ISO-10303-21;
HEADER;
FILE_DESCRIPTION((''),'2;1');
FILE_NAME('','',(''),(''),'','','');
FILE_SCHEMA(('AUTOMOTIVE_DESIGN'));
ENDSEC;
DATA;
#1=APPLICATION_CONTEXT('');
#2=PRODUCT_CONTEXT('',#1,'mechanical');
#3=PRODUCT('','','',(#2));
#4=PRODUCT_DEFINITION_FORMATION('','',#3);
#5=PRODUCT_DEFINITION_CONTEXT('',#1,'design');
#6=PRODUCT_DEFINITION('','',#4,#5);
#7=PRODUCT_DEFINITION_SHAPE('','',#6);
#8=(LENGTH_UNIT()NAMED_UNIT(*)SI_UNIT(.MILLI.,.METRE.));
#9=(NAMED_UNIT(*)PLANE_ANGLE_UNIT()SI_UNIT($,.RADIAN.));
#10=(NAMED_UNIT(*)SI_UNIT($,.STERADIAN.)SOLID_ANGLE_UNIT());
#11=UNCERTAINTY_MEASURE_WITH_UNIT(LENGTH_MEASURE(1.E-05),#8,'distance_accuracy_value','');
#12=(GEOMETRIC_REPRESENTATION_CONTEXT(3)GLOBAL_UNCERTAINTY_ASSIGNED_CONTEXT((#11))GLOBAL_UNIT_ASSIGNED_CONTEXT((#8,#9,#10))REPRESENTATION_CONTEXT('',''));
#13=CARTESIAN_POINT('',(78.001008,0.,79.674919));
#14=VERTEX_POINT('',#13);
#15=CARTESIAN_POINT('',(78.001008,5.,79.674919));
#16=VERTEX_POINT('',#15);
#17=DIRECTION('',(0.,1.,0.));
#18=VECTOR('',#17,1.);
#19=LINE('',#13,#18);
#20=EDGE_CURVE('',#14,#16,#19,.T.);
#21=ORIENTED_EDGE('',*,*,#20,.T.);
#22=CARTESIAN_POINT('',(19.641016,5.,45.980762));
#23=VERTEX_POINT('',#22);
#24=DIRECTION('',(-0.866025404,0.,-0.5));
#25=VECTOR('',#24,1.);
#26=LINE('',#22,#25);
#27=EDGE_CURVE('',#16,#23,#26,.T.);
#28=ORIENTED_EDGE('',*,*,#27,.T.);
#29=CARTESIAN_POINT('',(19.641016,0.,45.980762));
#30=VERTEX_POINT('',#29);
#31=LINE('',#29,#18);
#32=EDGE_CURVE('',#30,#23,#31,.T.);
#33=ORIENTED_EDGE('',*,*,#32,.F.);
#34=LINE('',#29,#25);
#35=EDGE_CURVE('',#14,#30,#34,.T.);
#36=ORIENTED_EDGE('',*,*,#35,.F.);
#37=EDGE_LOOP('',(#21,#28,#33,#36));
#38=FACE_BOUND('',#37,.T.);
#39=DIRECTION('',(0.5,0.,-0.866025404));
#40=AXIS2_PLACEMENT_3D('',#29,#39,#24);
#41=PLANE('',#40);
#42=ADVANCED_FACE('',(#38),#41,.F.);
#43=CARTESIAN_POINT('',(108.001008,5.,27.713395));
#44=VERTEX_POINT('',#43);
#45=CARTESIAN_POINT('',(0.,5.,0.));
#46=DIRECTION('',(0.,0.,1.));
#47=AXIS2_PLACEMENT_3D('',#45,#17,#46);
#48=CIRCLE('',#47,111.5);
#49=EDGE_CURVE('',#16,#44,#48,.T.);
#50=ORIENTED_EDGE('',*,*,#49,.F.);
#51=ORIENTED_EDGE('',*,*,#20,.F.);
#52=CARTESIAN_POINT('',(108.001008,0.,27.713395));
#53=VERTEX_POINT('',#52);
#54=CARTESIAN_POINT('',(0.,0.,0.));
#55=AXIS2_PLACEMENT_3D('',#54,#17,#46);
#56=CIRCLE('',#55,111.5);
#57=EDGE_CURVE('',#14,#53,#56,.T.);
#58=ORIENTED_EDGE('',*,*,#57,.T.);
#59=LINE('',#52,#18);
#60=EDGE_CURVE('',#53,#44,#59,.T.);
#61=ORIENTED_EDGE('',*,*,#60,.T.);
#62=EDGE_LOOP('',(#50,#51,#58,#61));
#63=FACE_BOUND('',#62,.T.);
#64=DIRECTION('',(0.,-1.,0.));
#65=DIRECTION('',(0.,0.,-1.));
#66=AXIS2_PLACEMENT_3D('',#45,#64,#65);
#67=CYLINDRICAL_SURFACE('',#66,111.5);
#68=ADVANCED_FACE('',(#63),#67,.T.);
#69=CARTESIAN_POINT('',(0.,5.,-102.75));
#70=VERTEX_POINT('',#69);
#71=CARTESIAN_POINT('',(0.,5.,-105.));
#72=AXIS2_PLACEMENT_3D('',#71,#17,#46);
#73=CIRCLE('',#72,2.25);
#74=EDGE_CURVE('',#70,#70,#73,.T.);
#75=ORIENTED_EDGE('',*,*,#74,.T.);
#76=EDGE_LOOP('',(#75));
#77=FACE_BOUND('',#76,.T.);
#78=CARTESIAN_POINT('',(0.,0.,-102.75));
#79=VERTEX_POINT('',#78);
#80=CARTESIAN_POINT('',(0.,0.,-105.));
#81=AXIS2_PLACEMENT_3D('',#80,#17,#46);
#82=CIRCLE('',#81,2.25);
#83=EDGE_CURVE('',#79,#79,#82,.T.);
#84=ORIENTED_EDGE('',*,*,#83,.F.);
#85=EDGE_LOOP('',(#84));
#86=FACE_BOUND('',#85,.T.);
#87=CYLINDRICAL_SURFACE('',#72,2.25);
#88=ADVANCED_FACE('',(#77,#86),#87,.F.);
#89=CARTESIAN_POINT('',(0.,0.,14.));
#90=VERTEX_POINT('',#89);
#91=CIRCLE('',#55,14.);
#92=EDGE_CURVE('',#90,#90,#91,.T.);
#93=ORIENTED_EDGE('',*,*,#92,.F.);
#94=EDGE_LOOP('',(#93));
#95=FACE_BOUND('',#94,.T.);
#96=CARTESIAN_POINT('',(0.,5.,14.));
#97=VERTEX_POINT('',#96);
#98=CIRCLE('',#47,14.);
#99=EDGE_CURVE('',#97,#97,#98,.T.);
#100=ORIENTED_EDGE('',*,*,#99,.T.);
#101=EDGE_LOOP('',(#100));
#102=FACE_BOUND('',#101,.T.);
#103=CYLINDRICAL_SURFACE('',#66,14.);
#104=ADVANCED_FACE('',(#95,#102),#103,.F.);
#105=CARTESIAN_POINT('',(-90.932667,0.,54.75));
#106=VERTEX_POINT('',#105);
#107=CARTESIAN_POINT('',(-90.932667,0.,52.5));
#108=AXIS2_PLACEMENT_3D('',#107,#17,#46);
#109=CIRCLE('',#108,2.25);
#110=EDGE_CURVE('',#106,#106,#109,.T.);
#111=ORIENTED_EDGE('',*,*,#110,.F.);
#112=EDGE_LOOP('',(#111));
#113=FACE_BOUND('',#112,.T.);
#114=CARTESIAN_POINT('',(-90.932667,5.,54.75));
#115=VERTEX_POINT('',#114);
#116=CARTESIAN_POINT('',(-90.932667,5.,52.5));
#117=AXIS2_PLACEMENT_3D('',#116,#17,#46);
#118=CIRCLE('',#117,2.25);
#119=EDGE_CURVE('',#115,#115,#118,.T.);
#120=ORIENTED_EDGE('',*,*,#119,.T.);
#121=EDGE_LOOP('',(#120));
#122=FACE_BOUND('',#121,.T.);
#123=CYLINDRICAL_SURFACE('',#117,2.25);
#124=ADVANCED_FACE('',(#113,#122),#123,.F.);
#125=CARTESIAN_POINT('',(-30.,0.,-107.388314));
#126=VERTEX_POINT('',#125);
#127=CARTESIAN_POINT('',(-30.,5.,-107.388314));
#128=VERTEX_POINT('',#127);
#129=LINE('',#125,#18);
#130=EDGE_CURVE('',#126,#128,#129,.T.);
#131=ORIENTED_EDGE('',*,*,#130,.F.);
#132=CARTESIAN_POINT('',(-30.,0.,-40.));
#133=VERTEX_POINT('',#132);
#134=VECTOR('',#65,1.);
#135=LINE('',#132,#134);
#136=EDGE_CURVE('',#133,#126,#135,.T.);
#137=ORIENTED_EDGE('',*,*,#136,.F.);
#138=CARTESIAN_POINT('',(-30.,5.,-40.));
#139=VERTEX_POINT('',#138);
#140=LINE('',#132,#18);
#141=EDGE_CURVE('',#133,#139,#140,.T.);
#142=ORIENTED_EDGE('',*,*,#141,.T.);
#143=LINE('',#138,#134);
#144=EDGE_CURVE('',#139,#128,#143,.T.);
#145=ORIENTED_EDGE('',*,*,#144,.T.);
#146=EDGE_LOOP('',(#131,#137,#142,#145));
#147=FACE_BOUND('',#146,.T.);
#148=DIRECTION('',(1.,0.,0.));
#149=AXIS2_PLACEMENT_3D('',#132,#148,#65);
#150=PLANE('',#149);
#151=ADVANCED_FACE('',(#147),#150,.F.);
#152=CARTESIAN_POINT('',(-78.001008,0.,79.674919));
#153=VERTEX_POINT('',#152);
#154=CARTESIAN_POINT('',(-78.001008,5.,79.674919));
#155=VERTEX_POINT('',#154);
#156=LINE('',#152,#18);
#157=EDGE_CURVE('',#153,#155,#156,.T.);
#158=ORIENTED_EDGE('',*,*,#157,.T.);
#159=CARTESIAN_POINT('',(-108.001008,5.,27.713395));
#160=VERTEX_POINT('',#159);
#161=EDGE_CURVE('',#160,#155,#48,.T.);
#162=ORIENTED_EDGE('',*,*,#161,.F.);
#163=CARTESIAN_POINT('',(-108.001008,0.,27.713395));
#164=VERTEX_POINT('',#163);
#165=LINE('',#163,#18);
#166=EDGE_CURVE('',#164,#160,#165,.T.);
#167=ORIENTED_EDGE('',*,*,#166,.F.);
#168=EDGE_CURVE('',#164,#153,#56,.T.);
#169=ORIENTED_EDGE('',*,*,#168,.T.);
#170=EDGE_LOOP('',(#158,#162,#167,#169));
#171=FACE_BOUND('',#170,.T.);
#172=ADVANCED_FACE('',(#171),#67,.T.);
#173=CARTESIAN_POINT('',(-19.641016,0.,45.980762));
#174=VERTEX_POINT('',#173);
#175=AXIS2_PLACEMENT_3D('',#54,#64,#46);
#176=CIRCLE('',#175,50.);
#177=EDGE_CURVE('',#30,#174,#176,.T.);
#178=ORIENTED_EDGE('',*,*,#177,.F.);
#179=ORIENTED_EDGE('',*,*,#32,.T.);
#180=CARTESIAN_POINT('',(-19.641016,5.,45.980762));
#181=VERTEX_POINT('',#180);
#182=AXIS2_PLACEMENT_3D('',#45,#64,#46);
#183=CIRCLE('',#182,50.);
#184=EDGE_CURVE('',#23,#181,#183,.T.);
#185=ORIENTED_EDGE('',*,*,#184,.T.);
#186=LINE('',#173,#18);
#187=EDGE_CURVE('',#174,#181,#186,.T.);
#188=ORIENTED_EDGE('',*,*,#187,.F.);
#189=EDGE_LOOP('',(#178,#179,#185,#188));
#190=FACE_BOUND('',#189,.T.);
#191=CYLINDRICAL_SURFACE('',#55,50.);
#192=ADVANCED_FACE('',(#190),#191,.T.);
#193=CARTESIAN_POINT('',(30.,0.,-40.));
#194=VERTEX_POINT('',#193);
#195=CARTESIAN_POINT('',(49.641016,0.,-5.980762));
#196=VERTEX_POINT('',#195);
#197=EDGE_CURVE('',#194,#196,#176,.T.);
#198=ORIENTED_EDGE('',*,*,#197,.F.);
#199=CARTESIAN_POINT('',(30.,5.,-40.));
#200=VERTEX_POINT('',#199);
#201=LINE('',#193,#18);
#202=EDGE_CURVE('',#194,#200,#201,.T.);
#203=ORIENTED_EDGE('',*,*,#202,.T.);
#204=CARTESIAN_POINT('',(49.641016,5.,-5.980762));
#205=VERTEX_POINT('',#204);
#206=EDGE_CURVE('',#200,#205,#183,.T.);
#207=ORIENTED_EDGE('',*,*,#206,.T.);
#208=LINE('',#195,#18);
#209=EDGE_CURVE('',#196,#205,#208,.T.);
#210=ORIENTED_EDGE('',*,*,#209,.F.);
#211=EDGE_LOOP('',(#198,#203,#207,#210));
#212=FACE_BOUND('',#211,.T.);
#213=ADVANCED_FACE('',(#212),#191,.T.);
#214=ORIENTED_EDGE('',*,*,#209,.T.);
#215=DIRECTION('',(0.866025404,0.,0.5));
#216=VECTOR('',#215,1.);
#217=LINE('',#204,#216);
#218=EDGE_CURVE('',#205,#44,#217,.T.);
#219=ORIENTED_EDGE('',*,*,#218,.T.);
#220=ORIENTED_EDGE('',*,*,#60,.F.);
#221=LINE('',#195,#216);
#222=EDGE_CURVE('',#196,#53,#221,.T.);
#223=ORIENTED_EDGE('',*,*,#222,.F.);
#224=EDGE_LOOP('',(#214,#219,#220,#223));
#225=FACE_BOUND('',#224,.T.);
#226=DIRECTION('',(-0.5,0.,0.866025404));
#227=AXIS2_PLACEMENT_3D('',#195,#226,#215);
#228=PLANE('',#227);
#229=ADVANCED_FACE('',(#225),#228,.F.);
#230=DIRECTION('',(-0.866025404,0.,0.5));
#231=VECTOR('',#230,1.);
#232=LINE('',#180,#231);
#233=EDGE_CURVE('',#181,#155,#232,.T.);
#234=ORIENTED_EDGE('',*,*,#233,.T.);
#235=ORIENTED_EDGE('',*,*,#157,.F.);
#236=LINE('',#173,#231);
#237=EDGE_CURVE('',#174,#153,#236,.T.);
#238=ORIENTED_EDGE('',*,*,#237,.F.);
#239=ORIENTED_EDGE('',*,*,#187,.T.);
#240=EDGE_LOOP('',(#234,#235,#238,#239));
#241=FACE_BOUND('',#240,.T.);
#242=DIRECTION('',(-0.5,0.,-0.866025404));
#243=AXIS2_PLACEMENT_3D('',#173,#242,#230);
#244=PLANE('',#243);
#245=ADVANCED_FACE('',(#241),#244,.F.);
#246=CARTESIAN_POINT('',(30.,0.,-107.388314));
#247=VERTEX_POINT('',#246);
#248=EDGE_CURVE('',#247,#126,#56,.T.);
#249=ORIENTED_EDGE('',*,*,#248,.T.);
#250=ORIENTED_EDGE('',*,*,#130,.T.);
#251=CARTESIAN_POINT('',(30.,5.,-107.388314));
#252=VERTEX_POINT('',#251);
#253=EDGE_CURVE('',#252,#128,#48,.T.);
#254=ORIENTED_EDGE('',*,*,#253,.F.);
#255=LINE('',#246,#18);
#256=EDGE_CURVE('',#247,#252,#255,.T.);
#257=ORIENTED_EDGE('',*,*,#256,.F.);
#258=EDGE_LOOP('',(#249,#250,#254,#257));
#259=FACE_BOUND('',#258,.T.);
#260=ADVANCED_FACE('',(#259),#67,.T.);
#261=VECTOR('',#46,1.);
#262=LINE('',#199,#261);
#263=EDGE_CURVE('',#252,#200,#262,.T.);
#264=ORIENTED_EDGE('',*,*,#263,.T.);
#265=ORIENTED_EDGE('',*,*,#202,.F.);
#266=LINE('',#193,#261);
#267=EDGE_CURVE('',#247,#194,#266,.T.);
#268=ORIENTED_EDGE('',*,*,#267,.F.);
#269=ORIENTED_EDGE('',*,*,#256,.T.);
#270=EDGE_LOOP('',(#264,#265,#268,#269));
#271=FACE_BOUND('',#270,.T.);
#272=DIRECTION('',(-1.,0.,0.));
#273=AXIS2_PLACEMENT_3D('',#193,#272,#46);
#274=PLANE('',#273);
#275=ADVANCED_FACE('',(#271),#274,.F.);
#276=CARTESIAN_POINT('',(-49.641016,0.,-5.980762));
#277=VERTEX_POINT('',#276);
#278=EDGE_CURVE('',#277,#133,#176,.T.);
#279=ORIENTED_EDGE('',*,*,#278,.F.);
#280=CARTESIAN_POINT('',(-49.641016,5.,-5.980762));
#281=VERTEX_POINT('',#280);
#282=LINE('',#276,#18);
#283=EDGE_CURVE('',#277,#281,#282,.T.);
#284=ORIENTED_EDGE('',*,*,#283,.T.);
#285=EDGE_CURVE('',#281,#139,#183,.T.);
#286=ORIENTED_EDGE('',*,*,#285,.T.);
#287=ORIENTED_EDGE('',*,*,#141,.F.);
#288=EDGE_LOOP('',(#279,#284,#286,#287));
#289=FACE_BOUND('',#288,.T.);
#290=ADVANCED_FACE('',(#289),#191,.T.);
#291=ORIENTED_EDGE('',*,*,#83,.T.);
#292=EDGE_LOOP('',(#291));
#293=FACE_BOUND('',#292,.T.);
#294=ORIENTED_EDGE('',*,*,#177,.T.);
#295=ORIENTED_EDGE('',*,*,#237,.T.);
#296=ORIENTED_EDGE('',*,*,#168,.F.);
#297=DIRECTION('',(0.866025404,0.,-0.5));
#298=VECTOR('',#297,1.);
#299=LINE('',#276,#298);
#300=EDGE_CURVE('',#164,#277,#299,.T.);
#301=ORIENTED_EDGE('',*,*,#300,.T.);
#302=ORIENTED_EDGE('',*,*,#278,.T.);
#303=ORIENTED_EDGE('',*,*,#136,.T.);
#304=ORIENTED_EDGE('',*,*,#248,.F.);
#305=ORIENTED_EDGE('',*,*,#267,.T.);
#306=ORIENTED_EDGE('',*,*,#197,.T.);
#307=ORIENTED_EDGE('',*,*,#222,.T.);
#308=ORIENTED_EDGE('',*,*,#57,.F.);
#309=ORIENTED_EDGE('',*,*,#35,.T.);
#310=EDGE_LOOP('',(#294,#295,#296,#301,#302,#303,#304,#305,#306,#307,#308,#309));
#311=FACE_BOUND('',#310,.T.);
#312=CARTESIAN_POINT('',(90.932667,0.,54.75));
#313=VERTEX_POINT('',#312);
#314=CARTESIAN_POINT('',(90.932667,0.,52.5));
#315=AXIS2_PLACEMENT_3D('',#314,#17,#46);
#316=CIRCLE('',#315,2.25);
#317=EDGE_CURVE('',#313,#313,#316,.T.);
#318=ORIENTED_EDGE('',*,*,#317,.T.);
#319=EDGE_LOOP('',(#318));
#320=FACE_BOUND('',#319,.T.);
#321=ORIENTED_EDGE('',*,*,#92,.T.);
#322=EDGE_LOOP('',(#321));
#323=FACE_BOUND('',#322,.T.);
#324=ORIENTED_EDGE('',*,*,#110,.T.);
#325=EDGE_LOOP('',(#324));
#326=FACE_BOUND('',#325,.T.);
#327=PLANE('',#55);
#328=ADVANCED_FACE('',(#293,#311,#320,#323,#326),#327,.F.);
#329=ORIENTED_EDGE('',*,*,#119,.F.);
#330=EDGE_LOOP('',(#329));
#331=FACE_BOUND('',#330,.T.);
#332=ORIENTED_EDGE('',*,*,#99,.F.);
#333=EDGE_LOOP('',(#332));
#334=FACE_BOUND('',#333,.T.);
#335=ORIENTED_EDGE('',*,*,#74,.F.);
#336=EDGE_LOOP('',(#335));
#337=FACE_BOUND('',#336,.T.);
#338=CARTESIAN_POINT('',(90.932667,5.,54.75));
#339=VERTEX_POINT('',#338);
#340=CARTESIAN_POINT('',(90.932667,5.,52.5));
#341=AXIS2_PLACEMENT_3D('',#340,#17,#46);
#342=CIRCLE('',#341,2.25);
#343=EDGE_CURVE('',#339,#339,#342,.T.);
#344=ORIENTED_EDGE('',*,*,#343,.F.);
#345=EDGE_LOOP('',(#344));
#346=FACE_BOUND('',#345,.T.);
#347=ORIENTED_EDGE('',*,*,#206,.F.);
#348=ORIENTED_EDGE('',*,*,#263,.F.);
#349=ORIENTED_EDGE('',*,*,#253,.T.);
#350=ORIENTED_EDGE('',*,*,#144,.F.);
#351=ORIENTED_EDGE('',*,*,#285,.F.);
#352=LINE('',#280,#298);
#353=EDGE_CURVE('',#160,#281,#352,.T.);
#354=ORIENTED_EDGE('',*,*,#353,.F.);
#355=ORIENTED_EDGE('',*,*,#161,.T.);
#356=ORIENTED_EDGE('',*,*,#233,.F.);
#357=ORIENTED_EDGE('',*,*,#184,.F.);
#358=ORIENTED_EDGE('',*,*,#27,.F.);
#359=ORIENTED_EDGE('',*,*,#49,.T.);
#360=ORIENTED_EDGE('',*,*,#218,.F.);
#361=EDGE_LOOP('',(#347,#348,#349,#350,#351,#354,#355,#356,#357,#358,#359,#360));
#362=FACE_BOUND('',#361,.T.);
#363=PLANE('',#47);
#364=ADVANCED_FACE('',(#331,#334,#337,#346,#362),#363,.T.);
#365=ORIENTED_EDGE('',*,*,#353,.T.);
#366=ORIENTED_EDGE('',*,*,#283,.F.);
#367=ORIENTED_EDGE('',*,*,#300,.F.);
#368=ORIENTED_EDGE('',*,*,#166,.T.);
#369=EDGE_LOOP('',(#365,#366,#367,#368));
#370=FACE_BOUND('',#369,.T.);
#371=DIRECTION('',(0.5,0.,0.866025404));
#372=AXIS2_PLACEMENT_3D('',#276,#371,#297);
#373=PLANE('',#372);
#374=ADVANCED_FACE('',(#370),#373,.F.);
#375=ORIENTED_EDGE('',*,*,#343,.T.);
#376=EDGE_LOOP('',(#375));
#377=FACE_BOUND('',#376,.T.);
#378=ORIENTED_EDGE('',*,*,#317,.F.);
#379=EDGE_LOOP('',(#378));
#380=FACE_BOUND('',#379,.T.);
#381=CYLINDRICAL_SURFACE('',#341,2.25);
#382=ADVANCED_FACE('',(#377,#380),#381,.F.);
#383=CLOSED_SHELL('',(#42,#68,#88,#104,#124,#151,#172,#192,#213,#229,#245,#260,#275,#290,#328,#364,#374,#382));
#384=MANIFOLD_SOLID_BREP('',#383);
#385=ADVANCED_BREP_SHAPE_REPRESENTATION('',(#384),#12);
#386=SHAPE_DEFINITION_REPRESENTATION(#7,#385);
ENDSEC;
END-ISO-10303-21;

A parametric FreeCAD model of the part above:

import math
import FreeCAD as App
import Part
import Sketcher
from FreeCAD import Vector
Q = App.Units.Quantity

doc = App.newDocument("Part")
body = doc.addObject("PartDesign::Body", "Body")

# Sketch on XZ plane
sketch1 = doc.addObject("Sketcher::SketchObject", "Sketch")
body.addObject(sketch1)
sketch1.AttachmentSupport = (doc.XZ_Plane, [""])
sketch1.MapMode = "FlatFace"
sketch1.addGeometry([
    Part.Circle(Vector(0, 0, 0), Vector(0, 0, 1), 112),
    Part.Circle(Vector(0, 0, 0), Vector(0, 0, 1), 14),
], False)
sketch1.addConstraint([
    Sketcher.Constraint("Coincident", 0, 3, -1, 1),
    Sketcher.Constraint("Coincident", 1, 3, -1, 1),
    Sketcher.Constraint("Diameter", 0, Q("223 mm")),
    Sketcher.Constraint("Diameter", 1, Q("28 mm")),
])
pad1 = doc.addObject("PartDesign::Pad", "Pad")
body.addObject(pad1)
pad1.Profile = sketch1
pad1.Length = 5
pad1.Reversed = True

# Sketch on XZ plane
sketch2 = doc.addObject("Sketcher::SketchObject", "Sketch001")
body.addObject(sketch2)
sketch2.AttachmentSupport = (doc.XZ_Plane, [""])
sketch2.MapMode = "FlatFace"
sketch2.AttachmentOffset = App.Placement(Vector(0, 0, -5), App.Rotation())
sketch2.addGeometry([
    Part.Circle(Vector(-90.9, 52.5, 0), Vector(0, 0, 1), 2.2),
    Part.Circle(Vector(90.9, 52.5, 0), Vector(0, 0, 1), 2.2),
    Part.Circle(Vector(0, -105, 0), Vector(0, 0, 1), 2.2),
], False)
sketch2.addConstraint([
    Sketcher.Constraint("Equal", 0, 1),
    Sketcher.Constraint("Equal", 1, 2),
    Sketcher.Constraint("Symmetric", 0, 3, 1, 3, -2),
    Sketcher.Constraint("PointOnObject", 2, 3, -2),
    Sketcher.Constraint("Diameter", 0, Q("4.5 mm")),
    Sketcher.Constraint("DistanceY", 2, 3, -1, 1, Q("105 mm")),
    Sketcher.Constraint("DistanceY", -1, 1, 0, 3, Q("52.5 mm")),
    Sketcher.Constraint("DistanceX", 0, 3, -1, 1, Q("90.932667 mm")),
])
doc.recompute()
hole = doc.addObject("PartDesign::Hole", "Hole")
body.addObject(hole)
hole.Profile = sketch2
hole.ThreadType = "None"
hole.Diameter = 4.5
hole.DepthType = "ThroughAll"
hole.Reversed = True

# Sketch on XZ plane
sketch3 = doc.addObject("Sketcher::SketchObject", "Sketch002")
body.addObject(sketch3)
sketch3.AttachmentSupport = (doc.XZ_Plane, [""])
sketch3.MapMode = "FlatFace"
sketch3.AttachmentOffset = App.Placement(Vector(0, 0, -5), App.Rotation())
sketch3.addGeometry([
    Part.LineSegment(Vector(-30, -40, 0), Vector(-30, -107, 0)),  # 0
    Part.ArcOfCircle(Part.Circle(Vector(0, 0, 0), Vector(0, 0, 1), 112), math.radians(166), math.radians(254)),  # 1
    Part.LineSegment(Vector(-108, 28, 0), Vector(-50, -6, 0)),  # 2
    Part.ArcOfCircle(Part.Circle(Vector(0, 0, 0), Vector(0, 0, 1), 50), math.radians(-173), math.radians(-127)),  # 3
    Part.LineSegment(Vector(30, -107, 0), Vector(30, -40, 0)),  # 4
    Part.ArcOfCircle(Part.Circle(Vector(0, 0, 0), Vector(0, 0, 1), 50), math.radians(-53), math.radians(-7)),  # 5
    Part.LineSegment(Vector(50, -6, 0), Vector(108, 28, 0)),  # 6
    Part.ArcOfCircle(Part.Circle(Vector(0, 0, 0), Vector(0, 0, 1), 112), math.radians(-74), math.radians(14)),  # 7
    Part.LineSegment(Vector(78, 80, 0), Vector(20, 46, 0)),  # 8
    Part.ArcOfCircle(Part.Circle(Vector(0, 0, 0), Vector(0, 0, 1), 50), math.radians(67), math.radians(113)),  # 9
    Part.LineSegment(Vector(-20, 46, 0), Vector(-78, 80, 0)),  # 10
    Part.ArcOfCircle(Part.Circle(Vector(0, 0, 0), Vector(0, 0, 1), 111), math.radians(46), math.radians(134)),  # 11
], False)
sketch3.addConstraint([
    Sketcher.Constraint("Coincident", 0, 2, 1, 2),
    Sketcher.Constraint("Coincident", 1, 1, 2, 1),
    Sketcher.Constraint("Coincident", 2, 2, 3, 1),
    Sketcher.Constraint("Coincident", 3, 2, 0, 1),
    Sketcher.Constraint("Coincident", 4, 2, 5, 1),
    Sketcher.Constraint("Coincident", 5, 2, 6, 1),
    Sketcher.Constraint("Coincident", 6, 2, 7, 2),
    Sketcher.Constraint("Coincident", 7, 1, 4, 1),
    Sketcher.Constraint("Coincident", 8, 2, 9, 1),
    Sketcher.Constraint("Coincident", 9, 2, 10, 1),
    Sketcher.Constraint("Coincident", 10, 2, 11, 2),
    Sketcher.Constraint("Coincident", 11, 1, 8, 1),
    Sketcher.Constraint("Vertical", 0),
    Sketcher.Constraint("Vertical", 4),
    Sketcher.Constraint("Coincident", 1, 3, -1, 1),
    Sketcher.Constraint("Coincident", 3, 3, -1, 1),
    Sketcher.Constraint("Coincident", 5, 3, -1, 1),
    Sketcher.Constraint("Coincident", 7, 3, -1, 1),
    Sketcher.Constraint("Coincident", 9, 3, -1, 1),
    Sketcher.Constraint("Coincident", 11, 3, -1, 1),
    Sketcher.Constraint("Equal", 3, 5),
    Sketcher.Constraint("Equal", 1, 7),
    Sketcher.Constraint("Equal", 5, 9),
    Sketcher.Constraint("Equal", 7, 11),
    Sketcher.Constraint("Parallel", 6, 8),
    Sketcher.Constraint("Parallel", 2, 10),
    Sketcher.Constraint("Horizontal", 3, 2, 4, 2),
    Sketcher.Constraint("Horizontal", 2, 2, 5, 2),
    Sketcher.Constraint("Horizontal", 1, 1, 6, 2),
    Sketcher.Constraint("Horizontal", 8, 2, 9, 2),
    Sketcher.Constraint("Equal", 6, 8),
    Sketcher.Constraint("Radius", 3, Q("50 mm")),
    Sketcher.Constraint("Radius", 1, Q("111.5 mm")),
    Sketcher.Constraint("Angle", 2, Q("-30 deg")),
    Sketcher.Constraint("DistanceX", 0, 2, -1, 1, Q("30 mm")),
    Sketcher.Constraint("DistanceX", 1, 1, 10, 2, Q("30 mm")),
])
pocket1 = doc.addObject("PartDesign::Pocket", "Pocket")
body.addObject(pocket1)
pocket1.Profile = sketch3
pocket1.Type = "ThroughAll"
pocket1.Reversed = True

doc.recompute()
